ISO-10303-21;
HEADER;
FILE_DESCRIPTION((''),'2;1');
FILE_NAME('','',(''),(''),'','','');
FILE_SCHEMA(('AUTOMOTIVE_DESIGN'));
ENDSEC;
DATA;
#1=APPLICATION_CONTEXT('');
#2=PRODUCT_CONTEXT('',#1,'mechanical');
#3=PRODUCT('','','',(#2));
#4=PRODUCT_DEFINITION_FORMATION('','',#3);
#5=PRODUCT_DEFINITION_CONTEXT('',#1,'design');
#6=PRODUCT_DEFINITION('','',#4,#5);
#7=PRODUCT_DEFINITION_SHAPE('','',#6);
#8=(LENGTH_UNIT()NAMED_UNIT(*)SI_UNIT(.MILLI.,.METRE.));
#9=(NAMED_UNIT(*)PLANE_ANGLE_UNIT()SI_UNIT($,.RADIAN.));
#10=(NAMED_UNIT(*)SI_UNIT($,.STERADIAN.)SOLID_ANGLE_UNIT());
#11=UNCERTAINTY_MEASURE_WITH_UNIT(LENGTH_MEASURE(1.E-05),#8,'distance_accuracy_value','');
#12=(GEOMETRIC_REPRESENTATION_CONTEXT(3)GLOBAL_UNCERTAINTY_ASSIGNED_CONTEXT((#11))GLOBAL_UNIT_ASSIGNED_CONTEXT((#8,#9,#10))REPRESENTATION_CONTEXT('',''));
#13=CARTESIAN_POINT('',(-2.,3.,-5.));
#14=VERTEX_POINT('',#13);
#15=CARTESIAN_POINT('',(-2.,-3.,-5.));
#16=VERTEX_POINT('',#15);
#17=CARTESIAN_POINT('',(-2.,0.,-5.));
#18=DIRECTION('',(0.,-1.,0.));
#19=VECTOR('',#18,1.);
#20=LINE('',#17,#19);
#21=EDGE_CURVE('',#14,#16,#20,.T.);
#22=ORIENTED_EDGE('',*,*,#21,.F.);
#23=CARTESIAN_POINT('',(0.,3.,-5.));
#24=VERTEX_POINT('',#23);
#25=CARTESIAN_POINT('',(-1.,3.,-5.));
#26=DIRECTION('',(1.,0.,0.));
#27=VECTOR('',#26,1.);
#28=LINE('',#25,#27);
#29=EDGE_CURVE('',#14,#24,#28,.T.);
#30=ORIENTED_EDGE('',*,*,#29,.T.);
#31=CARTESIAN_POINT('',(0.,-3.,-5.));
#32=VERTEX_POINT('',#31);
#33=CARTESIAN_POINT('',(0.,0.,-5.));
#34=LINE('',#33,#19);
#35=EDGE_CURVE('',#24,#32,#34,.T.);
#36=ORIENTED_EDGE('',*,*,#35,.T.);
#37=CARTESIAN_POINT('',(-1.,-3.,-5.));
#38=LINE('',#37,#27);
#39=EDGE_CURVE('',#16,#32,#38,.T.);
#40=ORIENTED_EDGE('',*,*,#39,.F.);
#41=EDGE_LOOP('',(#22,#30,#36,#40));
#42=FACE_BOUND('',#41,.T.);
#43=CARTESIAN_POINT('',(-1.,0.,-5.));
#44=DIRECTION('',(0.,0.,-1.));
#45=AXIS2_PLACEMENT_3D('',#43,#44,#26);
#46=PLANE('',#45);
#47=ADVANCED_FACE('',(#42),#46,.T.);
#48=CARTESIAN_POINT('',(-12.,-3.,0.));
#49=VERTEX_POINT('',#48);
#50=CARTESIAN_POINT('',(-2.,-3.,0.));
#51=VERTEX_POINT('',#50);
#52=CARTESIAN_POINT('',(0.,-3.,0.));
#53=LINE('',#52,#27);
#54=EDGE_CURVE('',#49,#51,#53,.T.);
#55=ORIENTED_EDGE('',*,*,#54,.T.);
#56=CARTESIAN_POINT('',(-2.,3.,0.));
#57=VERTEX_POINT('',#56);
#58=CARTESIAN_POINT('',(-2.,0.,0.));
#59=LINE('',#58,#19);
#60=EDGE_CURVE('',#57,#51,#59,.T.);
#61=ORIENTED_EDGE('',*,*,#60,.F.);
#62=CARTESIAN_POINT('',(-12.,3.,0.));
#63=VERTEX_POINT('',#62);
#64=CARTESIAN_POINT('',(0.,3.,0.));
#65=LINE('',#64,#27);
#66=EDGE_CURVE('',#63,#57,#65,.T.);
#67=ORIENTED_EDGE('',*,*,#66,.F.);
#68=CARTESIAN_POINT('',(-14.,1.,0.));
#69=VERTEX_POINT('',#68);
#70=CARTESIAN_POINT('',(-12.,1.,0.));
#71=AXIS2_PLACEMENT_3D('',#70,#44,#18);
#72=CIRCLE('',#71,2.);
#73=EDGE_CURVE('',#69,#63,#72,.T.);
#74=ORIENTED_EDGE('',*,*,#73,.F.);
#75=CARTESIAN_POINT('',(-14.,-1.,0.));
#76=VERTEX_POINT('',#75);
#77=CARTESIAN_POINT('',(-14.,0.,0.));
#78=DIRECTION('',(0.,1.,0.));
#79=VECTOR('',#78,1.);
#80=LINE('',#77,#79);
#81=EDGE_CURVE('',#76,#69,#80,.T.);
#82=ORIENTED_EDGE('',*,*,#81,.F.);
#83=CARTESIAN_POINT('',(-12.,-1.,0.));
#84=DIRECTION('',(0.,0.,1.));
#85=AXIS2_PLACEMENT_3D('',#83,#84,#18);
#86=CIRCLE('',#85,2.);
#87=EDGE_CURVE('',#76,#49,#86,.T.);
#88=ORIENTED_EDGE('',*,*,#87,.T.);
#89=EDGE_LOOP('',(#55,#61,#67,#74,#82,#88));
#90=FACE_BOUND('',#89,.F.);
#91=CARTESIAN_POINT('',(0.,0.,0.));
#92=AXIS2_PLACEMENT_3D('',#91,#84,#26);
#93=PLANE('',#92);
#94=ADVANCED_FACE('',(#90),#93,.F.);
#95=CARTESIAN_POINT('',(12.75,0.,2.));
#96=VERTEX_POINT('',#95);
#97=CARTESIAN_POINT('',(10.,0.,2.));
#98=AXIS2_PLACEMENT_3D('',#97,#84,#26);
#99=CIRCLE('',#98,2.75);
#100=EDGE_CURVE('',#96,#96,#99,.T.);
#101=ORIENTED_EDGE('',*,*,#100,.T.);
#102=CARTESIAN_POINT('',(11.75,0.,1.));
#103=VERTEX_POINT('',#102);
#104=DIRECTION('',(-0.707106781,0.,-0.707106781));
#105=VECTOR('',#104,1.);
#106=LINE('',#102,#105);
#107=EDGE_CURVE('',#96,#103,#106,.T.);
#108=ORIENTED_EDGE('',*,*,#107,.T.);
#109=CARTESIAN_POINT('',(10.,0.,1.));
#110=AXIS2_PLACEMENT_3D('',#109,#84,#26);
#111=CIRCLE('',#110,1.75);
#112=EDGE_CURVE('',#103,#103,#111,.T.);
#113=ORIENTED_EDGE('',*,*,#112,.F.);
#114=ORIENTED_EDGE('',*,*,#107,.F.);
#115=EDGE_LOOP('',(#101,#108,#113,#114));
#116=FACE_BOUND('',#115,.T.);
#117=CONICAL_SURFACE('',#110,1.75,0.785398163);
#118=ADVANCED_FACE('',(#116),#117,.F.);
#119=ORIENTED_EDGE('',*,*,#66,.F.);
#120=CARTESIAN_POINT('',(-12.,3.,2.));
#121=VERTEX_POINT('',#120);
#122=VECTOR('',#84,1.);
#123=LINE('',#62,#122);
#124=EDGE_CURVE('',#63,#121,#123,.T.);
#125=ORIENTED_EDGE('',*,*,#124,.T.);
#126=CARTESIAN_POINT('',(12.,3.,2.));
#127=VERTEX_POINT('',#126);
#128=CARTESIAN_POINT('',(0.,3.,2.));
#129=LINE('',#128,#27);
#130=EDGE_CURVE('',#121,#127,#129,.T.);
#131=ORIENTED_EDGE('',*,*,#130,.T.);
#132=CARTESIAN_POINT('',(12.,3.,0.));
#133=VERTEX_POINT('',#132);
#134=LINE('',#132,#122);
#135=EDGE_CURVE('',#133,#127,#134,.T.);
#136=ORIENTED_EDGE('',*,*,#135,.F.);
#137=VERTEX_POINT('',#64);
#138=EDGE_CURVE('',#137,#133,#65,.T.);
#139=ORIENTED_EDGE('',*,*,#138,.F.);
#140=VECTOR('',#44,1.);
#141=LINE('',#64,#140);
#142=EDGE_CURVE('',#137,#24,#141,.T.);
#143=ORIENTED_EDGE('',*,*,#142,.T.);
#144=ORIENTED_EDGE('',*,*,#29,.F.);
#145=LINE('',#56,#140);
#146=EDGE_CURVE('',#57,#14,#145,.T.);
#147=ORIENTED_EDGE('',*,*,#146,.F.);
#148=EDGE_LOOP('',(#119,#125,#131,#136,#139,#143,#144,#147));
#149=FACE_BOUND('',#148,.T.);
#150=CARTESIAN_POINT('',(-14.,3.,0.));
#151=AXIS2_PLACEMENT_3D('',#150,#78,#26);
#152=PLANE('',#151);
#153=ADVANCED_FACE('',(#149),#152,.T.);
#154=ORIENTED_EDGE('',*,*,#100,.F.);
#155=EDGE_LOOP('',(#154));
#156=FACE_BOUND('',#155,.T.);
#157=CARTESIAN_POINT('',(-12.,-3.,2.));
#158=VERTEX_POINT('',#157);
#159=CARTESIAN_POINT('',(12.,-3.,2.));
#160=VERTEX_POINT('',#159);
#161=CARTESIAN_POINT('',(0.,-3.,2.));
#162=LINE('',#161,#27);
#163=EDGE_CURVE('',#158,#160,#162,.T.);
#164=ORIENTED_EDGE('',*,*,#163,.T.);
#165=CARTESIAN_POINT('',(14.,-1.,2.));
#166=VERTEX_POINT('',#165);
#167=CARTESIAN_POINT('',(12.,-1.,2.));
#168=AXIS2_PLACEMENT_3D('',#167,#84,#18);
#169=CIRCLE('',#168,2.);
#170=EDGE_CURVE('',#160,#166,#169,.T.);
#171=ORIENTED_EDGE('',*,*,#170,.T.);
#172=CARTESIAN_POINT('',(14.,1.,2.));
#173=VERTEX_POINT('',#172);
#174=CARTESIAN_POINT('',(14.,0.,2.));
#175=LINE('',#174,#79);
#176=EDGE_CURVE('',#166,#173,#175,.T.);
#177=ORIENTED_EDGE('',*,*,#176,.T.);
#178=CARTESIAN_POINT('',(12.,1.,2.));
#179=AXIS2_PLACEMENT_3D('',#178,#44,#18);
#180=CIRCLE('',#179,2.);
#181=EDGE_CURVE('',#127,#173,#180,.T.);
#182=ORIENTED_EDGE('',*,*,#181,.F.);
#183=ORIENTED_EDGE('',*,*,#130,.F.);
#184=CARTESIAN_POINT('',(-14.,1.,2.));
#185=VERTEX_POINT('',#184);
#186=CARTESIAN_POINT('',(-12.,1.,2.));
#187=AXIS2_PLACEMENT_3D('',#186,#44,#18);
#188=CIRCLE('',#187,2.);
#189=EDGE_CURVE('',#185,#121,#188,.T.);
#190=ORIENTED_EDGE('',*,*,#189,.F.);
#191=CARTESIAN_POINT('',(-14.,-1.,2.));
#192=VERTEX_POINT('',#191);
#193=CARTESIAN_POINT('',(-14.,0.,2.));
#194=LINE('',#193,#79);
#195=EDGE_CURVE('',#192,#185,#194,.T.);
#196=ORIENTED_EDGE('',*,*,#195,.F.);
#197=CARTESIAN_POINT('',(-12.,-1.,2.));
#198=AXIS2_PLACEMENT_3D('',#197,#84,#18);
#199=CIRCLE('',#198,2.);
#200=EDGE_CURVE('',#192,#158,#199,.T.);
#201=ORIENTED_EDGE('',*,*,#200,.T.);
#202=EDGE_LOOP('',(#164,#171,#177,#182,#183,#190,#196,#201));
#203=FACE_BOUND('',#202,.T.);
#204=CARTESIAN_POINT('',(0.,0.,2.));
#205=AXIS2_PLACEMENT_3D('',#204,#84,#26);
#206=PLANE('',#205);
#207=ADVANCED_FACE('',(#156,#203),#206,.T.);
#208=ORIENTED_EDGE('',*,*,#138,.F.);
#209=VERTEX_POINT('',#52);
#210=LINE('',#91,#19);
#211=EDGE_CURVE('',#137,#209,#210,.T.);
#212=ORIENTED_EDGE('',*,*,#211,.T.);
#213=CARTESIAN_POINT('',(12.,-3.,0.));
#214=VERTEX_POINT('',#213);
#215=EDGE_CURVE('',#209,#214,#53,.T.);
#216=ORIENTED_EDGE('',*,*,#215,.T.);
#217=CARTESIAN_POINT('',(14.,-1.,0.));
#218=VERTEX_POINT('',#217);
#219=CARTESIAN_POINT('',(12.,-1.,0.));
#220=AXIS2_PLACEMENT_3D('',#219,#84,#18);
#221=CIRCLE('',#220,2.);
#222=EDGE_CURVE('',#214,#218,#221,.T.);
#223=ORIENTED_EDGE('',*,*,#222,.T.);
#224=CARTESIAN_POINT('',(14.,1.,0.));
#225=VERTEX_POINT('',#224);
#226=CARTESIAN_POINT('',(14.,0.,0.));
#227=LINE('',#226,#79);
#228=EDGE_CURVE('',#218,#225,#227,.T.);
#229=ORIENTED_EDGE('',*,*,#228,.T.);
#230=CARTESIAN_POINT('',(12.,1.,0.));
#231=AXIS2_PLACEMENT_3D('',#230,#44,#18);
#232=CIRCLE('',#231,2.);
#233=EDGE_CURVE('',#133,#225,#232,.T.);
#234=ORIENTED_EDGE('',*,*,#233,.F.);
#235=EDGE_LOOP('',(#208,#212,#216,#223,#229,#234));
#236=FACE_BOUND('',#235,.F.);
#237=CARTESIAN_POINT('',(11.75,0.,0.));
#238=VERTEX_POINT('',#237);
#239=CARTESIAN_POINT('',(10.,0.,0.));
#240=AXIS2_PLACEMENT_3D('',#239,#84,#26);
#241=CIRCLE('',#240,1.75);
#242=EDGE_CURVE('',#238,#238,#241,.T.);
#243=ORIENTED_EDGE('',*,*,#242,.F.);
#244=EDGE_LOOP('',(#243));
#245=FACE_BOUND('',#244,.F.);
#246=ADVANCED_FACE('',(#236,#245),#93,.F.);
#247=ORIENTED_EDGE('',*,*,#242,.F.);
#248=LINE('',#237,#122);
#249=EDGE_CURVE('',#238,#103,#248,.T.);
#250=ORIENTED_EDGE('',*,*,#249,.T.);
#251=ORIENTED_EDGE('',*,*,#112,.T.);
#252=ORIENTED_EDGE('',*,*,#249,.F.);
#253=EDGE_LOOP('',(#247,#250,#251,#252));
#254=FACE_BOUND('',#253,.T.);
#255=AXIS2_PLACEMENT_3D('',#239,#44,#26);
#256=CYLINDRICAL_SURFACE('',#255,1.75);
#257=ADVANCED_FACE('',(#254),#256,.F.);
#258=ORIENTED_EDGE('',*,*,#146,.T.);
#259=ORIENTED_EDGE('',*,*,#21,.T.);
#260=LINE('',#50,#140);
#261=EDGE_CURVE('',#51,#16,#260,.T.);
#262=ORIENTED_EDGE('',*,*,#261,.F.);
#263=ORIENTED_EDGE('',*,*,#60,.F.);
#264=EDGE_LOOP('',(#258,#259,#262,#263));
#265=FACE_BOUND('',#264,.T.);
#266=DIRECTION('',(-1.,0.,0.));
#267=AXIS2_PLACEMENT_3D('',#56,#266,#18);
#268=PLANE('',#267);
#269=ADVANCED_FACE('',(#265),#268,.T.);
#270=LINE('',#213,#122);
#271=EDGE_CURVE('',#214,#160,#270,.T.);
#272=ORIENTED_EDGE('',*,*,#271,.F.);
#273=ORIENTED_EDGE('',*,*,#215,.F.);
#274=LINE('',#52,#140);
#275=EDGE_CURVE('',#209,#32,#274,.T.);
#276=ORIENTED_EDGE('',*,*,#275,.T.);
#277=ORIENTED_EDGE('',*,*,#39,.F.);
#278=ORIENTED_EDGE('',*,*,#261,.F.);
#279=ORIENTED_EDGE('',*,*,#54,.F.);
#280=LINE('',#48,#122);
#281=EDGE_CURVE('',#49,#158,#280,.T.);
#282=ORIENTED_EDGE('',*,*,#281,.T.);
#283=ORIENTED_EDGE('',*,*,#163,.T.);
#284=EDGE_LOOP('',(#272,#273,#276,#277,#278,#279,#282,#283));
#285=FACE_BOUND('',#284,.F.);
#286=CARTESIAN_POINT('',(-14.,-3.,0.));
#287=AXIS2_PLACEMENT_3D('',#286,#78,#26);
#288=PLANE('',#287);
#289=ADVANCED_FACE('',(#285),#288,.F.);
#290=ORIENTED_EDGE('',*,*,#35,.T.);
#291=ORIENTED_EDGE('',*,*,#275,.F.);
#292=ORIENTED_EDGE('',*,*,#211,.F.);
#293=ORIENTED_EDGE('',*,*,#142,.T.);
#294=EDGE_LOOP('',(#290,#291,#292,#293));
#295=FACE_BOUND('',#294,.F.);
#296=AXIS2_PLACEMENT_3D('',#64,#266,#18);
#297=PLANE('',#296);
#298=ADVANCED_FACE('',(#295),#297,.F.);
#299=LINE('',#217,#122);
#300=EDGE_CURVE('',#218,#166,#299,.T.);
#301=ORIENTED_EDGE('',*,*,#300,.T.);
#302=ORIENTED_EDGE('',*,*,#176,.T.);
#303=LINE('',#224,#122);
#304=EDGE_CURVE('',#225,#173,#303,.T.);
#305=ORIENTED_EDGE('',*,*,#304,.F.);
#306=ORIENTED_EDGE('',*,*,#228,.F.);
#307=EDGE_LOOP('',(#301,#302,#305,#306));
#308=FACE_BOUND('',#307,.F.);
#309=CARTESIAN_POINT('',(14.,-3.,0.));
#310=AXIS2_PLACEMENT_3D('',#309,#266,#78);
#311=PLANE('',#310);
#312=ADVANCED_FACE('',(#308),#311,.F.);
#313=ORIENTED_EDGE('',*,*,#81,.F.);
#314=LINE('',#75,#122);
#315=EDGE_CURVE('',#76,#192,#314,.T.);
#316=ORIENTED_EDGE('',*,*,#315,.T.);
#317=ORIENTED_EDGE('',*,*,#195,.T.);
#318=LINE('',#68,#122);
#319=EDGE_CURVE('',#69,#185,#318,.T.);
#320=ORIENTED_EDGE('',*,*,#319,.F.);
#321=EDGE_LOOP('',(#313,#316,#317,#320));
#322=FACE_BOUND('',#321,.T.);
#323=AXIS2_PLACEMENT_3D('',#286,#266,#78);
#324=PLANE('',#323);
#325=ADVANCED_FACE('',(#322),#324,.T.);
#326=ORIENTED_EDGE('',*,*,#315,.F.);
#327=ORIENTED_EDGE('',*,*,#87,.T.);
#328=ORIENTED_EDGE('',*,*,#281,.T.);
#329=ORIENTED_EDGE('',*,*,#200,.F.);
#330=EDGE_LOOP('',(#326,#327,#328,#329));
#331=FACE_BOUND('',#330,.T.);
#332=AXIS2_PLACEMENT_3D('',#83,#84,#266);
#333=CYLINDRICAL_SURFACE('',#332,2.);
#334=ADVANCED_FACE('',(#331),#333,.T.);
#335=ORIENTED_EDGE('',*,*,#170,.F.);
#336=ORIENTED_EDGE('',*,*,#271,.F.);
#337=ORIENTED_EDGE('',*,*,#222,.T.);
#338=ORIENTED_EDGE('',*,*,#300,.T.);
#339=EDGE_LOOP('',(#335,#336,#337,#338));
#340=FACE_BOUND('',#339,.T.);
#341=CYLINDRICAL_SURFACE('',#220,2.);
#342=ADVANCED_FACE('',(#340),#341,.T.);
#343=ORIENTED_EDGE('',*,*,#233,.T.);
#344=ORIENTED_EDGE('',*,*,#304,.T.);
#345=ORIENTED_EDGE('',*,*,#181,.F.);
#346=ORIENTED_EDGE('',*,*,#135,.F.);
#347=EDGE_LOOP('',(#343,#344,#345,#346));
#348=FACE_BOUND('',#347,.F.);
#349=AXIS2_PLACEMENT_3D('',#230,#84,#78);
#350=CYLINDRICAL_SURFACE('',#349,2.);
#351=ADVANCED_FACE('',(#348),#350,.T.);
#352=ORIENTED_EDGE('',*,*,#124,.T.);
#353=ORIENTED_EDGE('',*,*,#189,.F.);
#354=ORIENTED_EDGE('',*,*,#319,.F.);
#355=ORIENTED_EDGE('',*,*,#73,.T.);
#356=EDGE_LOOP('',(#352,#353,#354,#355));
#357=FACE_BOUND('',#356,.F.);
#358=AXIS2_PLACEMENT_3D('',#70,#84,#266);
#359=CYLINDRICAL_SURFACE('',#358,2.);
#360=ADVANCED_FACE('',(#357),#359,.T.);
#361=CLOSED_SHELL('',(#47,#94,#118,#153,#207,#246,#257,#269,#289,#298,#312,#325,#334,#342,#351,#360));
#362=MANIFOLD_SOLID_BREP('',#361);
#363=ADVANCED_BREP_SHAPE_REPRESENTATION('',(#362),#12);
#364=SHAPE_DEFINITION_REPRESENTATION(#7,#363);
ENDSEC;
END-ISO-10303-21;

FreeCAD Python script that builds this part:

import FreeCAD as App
import Part
import Sketcher

V = App.Vector


def edges_at(feature, points):
    """Names of the edges that pass closest to the given points."""
    edges = feature.Shape.Edges
    near = lambda p: min(range(len(edges)), key=lambda i: edges[i].distToShape(Part.Vertex(*p))[0])
    return sorted({f"Edge{near(p) + 1}" for p in points})


def add_polygon(sketch, points):
    """Adds a closed chain of lines whose ends are joined by coincident constraints."""
    first, n = sketch.GeometryCount, len(points)
    for a, b in zip(points, points[1:] + points[:1]):
        sketch.addGeometry(Part.LineSegment(App.Vector(*a, 0), App.Vector(*b, 0)), False)
    for i in range(n):
        sketch.addConstraint(Sketcher.Constraint("Coincident", first + i, 2, first + (i + 1) % n, 1))

doc = App.newDocument("Part")
body = doc.addObject("PartDesign::Body", "Body")

sketch1 = body.newObject("Sketcher::SketchObject", "Sketch")
sketch1.AttachmentSupport = (doc.getObject("XY_Plane"), [""])
sketch1.MapMode = "FlatFace"
add_polygon(sketch1, [(-14, 3), (-14, -3), (14, -3), (14, 3)])
sketch1.addGeometry(Part.Circle(V(10, 0, 0), V(0, 0, 1), 1.8), False)
sketch1.addConstraint([
    Sketcher.Constraint("Vertical", 0),
    Sketcher.Constraint("Horizontal", 1),
    Sketcher.Constraint("Vertical", 2),
    Sketcher.Constraint("Horizontal", 3),
    Sketcher.Constraint("Symmetric", 0, 2, 2, 2, -1, 1),
    Sketcher.Constraint("PointOnObject", 4, 3, -1),
    Sketcher.Constraint("Diameter", 4, 3.5),
    Sketcher.Constraint("DistanceX", 1, 1, 1, 2, 28.0),
    Sketcher.Constraint("DistanceY", 0, 2, 0, 1, 6.0),
    Sketcher.Constraint("DistanceX", -1, 1, 4, 3, 10.0),
])
pad1 = body.newObject("PartDesign::Pad", "Pad")
pad1.Profile = sketch1
pad1.Length = 2

sketch2 = body.newObject("Sketcher::SketchObject", "Sketch001")
sketch2.AttachmentSupport = (doc.getObject("XY_Plane"), [""])
sketch2.MapMode = "FlatFace"
add_polygon(sketch2, [(-2, -3), (-2, 3), (0, 3), (0, -3)])
sketch2.addConstraint([
    Sketcher.Constraint("Vertical", 0),
    Sketcher.Constraint("Horizontal", 1),
    Sketcher.Constraint("Vertical", 2),
    Sketcher.Constraint("Horizontal", 3),
    Sketcher.Constraint("Symmetric", 1, 2, 2, 2, -1, 1),
    Sketcher.Constraint("DistanceX", 1, 1, 1, 2, 2.0),
    Sketcher.Constraint("DistanceY", 0, 1, 0, 2, 6.0),
])
pad2 = body.newObject("PartDesign::Pad", "Pad001")
pad2.Profile = sketch2
pad2.Length = 5
pad2.Reversed = True
doc.recompute()

chamfer = body.newObject("PartDesign::Chamfer", "Chamfer")
chamfer.Base = (pad2, edges_at(pad2, [(8.25, 0, 2)]))
chamfer.Size = 1
doc.recompute()

fillet = body.newObject("PartDesign::Fillet", "Fillet")
fillet.Base = (chamfer, edges_at(chamfer, [
    (14, -3, 1),
    (-14, -3, 1),
    (-14, 3, 1),
    (14, 3, 1),
]))
fillet.Radius = 2

doc.recompute()
